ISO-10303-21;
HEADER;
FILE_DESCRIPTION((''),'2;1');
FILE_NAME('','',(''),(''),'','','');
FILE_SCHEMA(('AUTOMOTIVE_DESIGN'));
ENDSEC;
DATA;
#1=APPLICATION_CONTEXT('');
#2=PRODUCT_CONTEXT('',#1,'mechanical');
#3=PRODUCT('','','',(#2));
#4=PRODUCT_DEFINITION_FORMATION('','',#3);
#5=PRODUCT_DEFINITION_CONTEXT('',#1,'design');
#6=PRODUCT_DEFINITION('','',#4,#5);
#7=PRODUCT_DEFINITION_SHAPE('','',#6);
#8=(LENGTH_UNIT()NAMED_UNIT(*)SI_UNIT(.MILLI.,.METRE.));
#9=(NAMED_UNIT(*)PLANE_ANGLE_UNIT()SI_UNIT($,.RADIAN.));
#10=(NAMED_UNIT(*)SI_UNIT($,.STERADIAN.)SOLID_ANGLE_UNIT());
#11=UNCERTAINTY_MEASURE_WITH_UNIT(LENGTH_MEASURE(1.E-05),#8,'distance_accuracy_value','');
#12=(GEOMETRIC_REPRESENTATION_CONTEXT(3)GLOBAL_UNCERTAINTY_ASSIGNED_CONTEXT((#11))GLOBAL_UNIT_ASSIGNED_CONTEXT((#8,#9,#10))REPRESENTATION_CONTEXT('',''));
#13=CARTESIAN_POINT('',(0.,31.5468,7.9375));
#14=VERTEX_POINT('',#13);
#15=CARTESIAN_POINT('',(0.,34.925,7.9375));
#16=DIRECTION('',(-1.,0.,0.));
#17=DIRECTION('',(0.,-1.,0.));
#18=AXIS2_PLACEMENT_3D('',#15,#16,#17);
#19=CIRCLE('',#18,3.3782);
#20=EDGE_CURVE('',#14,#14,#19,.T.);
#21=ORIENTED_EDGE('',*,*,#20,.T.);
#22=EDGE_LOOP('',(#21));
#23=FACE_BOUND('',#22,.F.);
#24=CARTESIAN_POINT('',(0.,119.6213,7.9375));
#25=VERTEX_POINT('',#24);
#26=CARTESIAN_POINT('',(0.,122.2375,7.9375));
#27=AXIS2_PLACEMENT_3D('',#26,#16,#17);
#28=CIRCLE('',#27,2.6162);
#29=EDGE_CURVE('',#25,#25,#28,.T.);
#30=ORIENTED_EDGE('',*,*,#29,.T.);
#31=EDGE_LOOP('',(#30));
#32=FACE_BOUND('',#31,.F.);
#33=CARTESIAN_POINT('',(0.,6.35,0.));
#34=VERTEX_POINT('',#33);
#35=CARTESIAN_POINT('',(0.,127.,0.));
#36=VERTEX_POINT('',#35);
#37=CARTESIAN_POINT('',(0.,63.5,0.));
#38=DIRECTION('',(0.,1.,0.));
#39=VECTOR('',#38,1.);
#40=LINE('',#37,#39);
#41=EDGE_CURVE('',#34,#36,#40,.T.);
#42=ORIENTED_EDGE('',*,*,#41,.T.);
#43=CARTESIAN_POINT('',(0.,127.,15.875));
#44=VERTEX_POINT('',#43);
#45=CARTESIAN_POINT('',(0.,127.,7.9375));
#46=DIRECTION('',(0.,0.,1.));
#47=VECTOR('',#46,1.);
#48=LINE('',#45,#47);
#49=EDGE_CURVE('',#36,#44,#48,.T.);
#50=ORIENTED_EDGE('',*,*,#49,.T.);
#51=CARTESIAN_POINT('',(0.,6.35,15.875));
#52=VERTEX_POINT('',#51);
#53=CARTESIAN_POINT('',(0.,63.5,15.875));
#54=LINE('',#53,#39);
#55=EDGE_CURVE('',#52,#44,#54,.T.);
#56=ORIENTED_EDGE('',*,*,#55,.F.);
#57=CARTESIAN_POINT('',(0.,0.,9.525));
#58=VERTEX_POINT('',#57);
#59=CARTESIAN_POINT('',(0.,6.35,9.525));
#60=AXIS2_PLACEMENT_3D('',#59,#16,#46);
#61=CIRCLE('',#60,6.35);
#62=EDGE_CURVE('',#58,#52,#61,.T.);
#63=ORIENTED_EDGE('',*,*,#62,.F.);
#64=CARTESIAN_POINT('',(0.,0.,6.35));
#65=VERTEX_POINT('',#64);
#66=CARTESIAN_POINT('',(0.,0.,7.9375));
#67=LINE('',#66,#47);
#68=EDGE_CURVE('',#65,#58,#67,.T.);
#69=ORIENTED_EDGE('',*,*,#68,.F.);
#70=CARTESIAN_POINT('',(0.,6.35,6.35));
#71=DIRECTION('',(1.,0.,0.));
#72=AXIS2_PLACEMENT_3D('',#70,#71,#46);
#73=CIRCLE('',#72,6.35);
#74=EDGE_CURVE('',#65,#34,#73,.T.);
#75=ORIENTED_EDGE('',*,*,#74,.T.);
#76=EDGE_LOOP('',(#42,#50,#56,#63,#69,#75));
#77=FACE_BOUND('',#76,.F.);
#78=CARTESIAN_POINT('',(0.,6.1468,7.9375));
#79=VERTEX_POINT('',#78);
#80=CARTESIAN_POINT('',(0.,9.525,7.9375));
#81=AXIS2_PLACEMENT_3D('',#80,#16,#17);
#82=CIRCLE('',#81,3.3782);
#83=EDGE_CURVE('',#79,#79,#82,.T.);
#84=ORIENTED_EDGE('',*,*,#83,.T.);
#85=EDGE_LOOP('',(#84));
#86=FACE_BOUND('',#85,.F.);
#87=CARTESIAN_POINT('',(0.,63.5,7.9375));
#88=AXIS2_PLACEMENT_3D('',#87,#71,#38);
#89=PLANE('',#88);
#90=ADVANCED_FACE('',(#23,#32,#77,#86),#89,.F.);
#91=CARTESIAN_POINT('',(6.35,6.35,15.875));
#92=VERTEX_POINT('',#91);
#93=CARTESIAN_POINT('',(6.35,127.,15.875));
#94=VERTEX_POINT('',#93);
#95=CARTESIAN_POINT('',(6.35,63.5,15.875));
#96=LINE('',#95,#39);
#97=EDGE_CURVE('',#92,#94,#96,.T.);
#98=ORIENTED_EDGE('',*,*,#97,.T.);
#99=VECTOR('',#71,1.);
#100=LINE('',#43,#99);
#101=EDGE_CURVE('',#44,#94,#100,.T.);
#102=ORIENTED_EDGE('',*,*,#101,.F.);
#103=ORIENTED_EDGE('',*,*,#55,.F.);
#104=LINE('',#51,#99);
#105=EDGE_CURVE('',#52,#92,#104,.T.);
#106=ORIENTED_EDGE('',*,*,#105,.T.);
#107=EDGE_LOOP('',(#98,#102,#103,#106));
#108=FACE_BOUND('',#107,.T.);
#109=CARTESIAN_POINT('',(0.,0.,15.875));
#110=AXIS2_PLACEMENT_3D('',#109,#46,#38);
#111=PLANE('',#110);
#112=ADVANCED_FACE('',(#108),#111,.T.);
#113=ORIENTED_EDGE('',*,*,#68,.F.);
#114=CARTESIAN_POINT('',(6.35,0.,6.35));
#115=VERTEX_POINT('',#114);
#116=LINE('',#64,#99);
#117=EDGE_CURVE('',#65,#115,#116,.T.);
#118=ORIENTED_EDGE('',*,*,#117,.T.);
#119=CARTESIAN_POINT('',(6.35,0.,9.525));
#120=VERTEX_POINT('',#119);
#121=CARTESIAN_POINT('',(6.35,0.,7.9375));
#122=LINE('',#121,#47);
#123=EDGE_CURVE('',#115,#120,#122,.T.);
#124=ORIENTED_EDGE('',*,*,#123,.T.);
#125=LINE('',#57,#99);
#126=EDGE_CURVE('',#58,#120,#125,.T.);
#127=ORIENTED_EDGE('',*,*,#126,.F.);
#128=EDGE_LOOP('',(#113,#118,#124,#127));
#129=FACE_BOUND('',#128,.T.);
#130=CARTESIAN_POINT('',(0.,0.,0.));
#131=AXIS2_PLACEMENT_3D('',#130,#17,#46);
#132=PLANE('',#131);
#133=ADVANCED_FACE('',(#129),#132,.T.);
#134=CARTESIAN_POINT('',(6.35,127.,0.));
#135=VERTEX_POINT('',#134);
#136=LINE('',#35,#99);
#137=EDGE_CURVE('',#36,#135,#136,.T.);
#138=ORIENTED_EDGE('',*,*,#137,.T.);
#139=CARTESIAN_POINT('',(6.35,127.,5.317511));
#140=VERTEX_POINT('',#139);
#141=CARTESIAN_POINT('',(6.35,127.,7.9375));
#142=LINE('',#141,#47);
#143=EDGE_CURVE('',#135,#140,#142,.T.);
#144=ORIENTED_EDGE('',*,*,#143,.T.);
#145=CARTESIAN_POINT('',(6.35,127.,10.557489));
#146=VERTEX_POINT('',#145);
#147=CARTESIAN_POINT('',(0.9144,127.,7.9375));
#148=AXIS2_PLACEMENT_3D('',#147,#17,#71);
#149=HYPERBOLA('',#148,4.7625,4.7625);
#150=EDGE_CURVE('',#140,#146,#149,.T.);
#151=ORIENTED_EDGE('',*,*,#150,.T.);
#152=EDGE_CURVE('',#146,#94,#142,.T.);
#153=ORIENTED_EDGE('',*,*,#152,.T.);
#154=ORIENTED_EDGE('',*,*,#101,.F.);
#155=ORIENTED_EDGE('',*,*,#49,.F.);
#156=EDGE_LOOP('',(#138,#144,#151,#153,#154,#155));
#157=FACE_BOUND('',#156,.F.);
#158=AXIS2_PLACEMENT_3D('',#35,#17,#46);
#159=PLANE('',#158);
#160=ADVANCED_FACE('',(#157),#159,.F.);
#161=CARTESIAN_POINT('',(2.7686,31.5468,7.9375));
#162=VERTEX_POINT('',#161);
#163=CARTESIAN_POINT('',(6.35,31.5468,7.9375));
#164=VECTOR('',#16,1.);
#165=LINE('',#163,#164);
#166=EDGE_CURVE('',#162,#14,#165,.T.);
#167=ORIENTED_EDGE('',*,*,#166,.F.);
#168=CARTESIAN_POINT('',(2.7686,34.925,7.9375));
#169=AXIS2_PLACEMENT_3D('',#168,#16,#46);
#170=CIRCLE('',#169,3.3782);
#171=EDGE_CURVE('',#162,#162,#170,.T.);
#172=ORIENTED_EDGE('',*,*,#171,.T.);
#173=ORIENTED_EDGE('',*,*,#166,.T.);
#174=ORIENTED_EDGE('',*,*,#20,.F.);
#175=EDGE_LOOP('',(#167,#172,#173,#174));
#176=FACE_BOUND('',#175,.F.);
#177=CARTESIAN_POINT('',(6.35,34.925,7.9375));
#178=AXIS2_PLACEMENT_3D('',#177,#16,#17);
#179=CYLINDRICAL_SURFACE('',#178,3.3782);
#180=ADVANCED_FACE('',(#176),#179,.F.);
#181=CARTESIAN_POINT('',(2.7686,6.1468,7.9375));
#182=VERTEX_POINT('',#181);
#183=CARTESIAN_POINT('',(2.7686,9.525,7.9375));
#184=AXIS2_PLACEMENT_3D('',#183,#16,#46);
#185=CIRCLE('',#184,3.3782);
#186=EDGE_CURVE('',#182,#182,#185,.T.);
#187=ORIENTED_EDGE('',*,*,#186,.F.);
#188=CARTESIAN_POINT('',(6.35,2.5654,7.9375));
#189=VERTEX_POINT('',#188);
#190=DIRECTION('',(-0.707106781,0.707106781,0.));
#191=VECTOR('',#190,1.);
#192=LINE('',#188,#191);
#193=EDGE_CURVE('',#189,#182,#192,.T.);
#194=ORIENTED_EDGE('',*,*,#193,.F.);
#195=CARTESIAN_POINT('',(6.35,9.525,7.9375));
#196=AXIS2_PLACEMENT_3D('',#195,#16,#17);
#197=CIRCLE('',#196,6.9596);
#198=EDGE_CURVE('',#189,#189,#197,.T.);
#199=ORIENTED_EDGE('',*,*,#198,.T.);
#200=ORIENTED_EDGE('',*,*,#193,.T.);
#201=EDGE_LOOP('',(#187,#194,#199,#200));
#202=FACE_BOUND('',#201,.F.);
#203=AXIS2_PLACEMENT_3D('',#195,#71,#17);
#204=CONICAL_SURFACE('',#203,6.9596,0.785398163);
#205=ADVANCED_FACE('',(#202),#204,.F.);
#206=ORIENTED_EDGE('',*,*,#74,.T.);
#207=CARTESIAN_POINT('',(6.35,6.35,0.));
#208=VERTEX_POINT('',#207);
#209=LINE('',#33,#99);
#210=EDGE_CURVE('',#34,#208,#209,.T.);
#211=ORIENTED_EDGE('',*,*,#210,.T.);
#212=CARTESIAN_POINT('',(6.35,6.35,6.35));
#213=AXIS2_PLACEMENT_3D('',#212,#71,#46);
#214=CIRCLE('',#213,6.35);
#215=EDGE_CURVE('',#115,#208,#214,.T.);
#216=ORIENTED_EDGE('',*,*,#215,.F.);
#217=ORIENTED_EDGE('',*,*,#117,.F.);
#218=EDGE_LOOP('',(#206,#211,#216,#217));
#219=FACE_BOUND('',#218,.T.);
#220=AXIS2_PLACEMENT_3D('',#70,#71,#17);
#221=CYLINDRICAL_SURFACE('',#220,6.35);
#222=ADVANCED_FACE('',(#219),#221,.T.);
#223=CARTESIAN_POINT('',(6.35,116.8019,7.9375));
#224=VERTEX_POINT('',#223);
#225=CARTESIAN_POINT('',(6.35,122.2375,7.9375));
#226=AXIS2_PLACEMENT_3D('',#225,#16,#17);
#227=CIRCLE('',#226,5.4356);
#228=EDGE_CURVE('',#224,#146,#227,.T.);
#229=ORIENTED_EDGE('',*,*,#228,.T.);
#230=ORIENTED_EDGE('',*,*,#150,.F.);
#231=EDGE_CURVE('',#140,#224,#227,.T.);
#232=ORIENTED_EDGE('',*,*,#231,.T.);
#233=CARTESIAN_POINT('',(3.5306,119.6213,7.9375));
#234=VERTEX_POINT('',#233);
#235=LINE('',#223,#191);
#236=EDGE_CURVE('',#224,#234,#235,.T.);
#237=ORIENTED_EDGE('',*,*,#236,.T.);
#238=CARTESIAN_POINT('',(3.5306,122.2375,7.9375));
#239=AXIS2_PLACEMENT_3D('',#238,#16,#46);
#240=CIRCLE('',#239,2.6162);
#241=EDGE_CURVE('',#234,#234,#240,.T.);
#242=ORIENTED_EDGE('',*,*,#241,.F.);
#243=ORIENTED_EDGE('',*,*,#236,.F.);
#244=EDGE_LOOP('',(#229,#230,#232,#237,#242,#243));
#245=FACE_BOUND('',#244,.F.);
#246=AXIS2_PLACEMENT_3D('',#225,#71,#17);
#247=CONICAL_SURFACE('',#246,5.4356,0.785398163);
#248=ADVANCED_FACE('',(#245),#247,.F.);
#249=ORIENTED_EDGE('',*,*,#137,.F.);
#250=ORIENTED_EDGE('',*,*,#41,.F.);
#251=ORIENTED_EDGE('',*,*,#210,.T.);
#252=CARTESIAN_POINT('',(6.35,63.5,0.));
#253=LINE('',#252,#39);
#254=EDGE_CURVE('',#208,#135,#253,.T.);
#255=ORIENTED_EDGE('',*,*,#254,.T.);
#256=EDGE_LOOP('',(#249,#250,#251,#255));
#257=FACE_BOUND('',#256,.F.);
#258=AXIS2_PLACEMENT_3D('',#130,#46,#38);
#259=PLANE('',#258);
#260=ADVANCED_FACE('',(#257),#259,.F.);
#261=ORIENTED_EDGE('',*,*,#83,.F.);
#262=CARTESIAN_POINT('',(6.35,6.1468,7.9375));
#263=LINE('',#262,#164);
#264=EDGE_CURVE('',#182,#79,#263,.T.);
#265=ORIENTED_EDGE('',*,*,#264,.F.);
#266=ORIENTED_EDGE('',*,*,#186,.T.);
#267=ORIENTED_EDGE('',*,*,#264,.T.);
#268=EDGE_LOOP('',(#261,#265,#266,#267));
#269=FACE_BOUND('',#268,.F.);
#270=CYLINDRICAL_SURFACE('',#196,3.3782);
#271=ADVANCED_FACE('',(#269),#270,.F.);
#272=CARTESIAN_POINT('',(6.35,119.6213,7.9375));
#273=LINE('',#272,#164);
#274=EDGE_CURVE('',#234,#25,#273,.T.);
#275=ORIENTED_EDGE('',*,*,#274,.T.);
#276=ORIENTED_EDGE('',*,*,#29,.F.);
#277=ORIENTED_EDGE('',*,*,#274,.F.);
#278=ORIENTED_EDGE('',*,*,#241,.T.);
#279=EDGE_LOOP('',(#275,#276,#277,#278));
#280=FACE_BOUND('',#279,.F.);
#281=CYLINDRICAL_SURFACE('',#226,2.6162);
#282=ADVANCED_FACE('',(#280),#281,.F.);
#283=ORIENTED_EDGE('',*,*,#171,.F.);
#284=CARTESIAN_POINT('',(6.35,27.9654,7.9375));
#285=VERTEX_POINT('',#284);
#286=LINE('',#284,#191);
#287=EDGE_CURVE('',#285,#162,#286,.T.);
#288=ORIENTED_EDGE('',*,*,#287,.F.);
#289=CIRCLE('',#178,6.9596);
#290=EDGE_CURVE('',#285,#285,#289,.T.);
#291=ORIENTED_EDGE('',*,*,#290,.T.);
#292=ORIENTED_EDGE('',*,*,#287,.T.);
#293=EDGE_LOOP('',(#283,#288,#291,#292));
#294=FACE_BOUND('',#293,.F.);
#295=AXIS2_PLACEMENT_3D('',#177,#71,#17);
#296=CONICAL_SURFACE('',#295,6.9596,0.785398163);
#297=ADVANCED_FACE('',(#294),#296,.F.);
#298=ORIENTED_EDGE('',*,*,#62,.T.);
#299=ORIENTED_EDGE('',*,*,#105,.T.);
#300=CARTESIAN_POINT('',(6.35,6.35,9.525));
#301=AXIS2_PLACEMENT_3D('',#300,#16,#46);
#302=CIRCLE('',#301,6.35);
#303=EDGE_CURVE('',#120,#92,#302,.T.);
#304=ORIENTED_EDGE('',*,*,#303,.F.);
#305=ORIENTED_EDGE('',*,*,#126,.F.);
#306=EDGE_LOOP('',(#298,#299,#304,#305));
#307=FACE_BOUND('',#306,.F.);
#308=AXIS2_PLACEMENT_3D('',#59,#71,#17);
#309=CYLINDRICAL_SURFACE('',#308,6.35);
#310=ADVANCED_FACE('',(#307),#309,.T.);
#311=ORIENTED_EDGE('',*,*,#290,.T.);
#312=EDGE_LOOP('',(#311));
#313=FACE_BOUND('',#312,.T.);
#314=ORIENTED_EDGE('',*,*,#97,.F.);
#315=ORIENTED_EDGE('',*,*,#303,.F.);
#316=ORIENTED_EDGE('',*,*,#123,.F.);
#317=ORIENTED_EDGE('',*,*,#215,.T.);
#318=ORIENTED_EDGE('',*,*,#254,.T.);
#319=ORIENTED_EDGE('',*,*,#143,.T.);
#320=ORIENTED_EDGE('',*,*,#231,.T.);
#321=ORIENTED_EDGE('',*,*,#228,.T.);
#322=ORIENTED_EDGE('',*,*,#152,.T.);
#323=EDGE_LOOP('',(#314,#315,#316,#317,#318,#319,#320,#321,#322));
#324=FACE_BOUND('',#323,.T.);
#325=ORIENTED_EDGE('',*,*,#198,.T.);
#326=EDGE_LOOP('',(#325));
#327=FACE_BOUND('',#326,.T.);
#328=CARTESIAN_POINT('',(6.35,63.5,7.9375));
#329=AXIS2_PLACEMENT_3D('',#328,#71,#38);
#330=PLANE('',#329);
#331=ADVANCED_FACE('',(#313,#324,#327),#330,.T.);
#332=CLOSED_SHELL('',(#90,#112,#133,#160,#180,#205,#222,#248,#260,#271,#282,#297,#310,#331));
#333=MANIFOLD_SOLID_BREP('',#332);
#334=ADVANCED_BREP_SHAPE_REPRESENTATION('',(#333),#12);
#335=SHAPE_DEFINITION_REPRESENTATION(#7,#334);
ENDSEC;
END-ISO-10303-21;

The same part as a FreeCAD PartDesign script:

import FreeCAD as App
import Part
import Sketcher
Q = App.Units.Quantity


def edges_at(feature, points):
    """Names of the edges that pass closest to the given points."""
    edges = feature.Shape.Edges
    near = lambda p: min(range(len(edges)), key=lambda i: edges[i].distToShape(Part.Vertex(*p))[0])
    return sorted({f"Edge{near(p) + 1}" for p in points})

doc = App.newDocument("Part")
body = doc.addObject("PartDesign::Body", "Body")

# Sketch on YZ plane
sketch1 = body.newObject("Sketcher::SketchObject", "Sketch")
sketch1.AttachmentSupport = (doc.getObject("YZ_Plane"), [""])
sketch1.MapMode = "FlatFace"
sketch1.addGeometry([
    Part.LineSegment(App.Vector(0, 16, 0), App.Vector(0, 0, 0)),
    Part.LineSegment(App.Vector(0, 0, 0), App.Vector(127, 0, 0)),
    Part.LineSegment(App.Vector(127, 0, 0), App.Vector(127, 16, 0)),
    Part.LineSegment(App.Vector(127, 16, 0), App.Vector(0, 16, 0)),
], False)
sketch1.addConstraint([
    Sketcher.Constraint("Coincident", 0, 2, 1, 1),
    Sketcher.Constraint("Coincident", 1, 2, 2, 1),
    Sketcher.Constraint("Coincident", 2, 2, 3, 1),
    Sketcher.Constraint("Coincident", 3, 2, 0, 1),
    Sketcher.Constraint("Vertical", 0),
    Sketcher.Constraint("Horizontal", 1),
    Sketcher.Constraint("Vertical", 2),
    Sketcher.Constraint("Horizontal", 3),
    Sketcher.Constraint("Coincident", 0, 2, -1, 1),
    Sketcher.Constraint("DistanceX", 1, 1, 1, 2, Q("5 in")),
    Sketcher.Constraint("DistanceY", 0, 2, 0, 1, Q("0.625 in")),
])
pad1 = body.newObject("PartDesign::Pad", "Pad")
pad1.Profile = sketch1
pad1.Length = Q("0.25 in")

# Sketch on YZ plane
sketch2 = body.newObject("Sketcher::SketchObject", "Sketch001")
sketch2.AttachmentSupport = (doc.getObject("YZ_Plane"), [""])
sketch2.MapMode = "FlatFace"
sketch2.AttachmentOffset = App.Placement(App.Vector(0, 0, 0.25 * 25.4), App.Rotation())
sketch2.addGeometry([
    Part.Circle(App.Vector(9.5, 7.9, 0), App.Vector(0, 0, 1), 3.4),
    Part.Circle(App.Vector(34.9, 7.9, 0), App.Vector(0, 0, 1), 3.4),
], False)
sketch2.addConstraint([
    Sketcher.Constraint("Equal", 0, 1),
    Sketcher.Constraint("Horizontal", 0, 3, 1, 3),
    Sketcher.Constraint("Diameter", 0, Q("0.266 in")),
    Sketcher.Constraint("DistanceX", 0, 3, 1, 3, Q("1 in")),
    Sketcher.Constraint("DistanceX", -1, 1, 0, 3, Q("0.375 in")),
    Sketcher.Constraint("DistanceY", -1, 1, 0, 3, Q("0.3125 in")),
])
doc.recompute()
hole = body.newObject("PartDesign::Hole", "Hole")
hole.Profile = sketch2
hole.ThreadType = "None"
hole.Diameter = Q("0.266 in")
hole.DepthType = "ThroughAll"
hole.HoleCutType = "Countersink"
hole.HoleCutDiameter = Q("0.548 in")
hole.HoleCutCountersinkAngle = 90

# Sketch on YZ plane
sketch3 = body.newObject("Sketcher::SketchObject", "Sketch002")
sketch3.AttachmentSupport = (doc.getObject("YZ_Plane"), [""])
sketch3.MapMode = "FlatFace"
sketch3.AttachmentOffset = App.Placement(App.Vector(0, 0, 0.25 * 25.4), App.Rotation())
sketch3.addGeometry(Part.Circle(App.Vector(122.2, 7.9, 0), App.Vector(0, 0, 1), 2.6), False)
sketch3.addConstraint([
    Sketcher.Constraint("Diameter", 0, Q("0.206 in")),
    Sketcher.Constraint("DistanceX", -1, 1, 0, 3, Q("4.8125 in")),
    Sketcher.Constraint("DistanceY", -1, 1, 0, 3, Q("0.3125 in")),
])
doc.recompute()
hole2 = body.newObject("PartDesign::Hole", "Hole001")
hole2.Profile = sketch3
hole2.ThreadType = "None"
hole2.Diameter = Q("0.206 in")
hole2.DepthType = "ThroughAll"
hole2.HoleCutType = "Countersink"
hole2.HoleCutDiameter = Q("0.428 in")
hole2.HoleCutCountersinkAngle = 90
doc.recompute()

fillet = body.newObject("PartDesign::Fillet", "Fillet")
fillet.Base = (hole2, edges_at(hole2, [(3.175, 0, 15.875), (3.175, 0, 0)]))
fillet.Radius = Q("0.25 in")

doc.recompute()
